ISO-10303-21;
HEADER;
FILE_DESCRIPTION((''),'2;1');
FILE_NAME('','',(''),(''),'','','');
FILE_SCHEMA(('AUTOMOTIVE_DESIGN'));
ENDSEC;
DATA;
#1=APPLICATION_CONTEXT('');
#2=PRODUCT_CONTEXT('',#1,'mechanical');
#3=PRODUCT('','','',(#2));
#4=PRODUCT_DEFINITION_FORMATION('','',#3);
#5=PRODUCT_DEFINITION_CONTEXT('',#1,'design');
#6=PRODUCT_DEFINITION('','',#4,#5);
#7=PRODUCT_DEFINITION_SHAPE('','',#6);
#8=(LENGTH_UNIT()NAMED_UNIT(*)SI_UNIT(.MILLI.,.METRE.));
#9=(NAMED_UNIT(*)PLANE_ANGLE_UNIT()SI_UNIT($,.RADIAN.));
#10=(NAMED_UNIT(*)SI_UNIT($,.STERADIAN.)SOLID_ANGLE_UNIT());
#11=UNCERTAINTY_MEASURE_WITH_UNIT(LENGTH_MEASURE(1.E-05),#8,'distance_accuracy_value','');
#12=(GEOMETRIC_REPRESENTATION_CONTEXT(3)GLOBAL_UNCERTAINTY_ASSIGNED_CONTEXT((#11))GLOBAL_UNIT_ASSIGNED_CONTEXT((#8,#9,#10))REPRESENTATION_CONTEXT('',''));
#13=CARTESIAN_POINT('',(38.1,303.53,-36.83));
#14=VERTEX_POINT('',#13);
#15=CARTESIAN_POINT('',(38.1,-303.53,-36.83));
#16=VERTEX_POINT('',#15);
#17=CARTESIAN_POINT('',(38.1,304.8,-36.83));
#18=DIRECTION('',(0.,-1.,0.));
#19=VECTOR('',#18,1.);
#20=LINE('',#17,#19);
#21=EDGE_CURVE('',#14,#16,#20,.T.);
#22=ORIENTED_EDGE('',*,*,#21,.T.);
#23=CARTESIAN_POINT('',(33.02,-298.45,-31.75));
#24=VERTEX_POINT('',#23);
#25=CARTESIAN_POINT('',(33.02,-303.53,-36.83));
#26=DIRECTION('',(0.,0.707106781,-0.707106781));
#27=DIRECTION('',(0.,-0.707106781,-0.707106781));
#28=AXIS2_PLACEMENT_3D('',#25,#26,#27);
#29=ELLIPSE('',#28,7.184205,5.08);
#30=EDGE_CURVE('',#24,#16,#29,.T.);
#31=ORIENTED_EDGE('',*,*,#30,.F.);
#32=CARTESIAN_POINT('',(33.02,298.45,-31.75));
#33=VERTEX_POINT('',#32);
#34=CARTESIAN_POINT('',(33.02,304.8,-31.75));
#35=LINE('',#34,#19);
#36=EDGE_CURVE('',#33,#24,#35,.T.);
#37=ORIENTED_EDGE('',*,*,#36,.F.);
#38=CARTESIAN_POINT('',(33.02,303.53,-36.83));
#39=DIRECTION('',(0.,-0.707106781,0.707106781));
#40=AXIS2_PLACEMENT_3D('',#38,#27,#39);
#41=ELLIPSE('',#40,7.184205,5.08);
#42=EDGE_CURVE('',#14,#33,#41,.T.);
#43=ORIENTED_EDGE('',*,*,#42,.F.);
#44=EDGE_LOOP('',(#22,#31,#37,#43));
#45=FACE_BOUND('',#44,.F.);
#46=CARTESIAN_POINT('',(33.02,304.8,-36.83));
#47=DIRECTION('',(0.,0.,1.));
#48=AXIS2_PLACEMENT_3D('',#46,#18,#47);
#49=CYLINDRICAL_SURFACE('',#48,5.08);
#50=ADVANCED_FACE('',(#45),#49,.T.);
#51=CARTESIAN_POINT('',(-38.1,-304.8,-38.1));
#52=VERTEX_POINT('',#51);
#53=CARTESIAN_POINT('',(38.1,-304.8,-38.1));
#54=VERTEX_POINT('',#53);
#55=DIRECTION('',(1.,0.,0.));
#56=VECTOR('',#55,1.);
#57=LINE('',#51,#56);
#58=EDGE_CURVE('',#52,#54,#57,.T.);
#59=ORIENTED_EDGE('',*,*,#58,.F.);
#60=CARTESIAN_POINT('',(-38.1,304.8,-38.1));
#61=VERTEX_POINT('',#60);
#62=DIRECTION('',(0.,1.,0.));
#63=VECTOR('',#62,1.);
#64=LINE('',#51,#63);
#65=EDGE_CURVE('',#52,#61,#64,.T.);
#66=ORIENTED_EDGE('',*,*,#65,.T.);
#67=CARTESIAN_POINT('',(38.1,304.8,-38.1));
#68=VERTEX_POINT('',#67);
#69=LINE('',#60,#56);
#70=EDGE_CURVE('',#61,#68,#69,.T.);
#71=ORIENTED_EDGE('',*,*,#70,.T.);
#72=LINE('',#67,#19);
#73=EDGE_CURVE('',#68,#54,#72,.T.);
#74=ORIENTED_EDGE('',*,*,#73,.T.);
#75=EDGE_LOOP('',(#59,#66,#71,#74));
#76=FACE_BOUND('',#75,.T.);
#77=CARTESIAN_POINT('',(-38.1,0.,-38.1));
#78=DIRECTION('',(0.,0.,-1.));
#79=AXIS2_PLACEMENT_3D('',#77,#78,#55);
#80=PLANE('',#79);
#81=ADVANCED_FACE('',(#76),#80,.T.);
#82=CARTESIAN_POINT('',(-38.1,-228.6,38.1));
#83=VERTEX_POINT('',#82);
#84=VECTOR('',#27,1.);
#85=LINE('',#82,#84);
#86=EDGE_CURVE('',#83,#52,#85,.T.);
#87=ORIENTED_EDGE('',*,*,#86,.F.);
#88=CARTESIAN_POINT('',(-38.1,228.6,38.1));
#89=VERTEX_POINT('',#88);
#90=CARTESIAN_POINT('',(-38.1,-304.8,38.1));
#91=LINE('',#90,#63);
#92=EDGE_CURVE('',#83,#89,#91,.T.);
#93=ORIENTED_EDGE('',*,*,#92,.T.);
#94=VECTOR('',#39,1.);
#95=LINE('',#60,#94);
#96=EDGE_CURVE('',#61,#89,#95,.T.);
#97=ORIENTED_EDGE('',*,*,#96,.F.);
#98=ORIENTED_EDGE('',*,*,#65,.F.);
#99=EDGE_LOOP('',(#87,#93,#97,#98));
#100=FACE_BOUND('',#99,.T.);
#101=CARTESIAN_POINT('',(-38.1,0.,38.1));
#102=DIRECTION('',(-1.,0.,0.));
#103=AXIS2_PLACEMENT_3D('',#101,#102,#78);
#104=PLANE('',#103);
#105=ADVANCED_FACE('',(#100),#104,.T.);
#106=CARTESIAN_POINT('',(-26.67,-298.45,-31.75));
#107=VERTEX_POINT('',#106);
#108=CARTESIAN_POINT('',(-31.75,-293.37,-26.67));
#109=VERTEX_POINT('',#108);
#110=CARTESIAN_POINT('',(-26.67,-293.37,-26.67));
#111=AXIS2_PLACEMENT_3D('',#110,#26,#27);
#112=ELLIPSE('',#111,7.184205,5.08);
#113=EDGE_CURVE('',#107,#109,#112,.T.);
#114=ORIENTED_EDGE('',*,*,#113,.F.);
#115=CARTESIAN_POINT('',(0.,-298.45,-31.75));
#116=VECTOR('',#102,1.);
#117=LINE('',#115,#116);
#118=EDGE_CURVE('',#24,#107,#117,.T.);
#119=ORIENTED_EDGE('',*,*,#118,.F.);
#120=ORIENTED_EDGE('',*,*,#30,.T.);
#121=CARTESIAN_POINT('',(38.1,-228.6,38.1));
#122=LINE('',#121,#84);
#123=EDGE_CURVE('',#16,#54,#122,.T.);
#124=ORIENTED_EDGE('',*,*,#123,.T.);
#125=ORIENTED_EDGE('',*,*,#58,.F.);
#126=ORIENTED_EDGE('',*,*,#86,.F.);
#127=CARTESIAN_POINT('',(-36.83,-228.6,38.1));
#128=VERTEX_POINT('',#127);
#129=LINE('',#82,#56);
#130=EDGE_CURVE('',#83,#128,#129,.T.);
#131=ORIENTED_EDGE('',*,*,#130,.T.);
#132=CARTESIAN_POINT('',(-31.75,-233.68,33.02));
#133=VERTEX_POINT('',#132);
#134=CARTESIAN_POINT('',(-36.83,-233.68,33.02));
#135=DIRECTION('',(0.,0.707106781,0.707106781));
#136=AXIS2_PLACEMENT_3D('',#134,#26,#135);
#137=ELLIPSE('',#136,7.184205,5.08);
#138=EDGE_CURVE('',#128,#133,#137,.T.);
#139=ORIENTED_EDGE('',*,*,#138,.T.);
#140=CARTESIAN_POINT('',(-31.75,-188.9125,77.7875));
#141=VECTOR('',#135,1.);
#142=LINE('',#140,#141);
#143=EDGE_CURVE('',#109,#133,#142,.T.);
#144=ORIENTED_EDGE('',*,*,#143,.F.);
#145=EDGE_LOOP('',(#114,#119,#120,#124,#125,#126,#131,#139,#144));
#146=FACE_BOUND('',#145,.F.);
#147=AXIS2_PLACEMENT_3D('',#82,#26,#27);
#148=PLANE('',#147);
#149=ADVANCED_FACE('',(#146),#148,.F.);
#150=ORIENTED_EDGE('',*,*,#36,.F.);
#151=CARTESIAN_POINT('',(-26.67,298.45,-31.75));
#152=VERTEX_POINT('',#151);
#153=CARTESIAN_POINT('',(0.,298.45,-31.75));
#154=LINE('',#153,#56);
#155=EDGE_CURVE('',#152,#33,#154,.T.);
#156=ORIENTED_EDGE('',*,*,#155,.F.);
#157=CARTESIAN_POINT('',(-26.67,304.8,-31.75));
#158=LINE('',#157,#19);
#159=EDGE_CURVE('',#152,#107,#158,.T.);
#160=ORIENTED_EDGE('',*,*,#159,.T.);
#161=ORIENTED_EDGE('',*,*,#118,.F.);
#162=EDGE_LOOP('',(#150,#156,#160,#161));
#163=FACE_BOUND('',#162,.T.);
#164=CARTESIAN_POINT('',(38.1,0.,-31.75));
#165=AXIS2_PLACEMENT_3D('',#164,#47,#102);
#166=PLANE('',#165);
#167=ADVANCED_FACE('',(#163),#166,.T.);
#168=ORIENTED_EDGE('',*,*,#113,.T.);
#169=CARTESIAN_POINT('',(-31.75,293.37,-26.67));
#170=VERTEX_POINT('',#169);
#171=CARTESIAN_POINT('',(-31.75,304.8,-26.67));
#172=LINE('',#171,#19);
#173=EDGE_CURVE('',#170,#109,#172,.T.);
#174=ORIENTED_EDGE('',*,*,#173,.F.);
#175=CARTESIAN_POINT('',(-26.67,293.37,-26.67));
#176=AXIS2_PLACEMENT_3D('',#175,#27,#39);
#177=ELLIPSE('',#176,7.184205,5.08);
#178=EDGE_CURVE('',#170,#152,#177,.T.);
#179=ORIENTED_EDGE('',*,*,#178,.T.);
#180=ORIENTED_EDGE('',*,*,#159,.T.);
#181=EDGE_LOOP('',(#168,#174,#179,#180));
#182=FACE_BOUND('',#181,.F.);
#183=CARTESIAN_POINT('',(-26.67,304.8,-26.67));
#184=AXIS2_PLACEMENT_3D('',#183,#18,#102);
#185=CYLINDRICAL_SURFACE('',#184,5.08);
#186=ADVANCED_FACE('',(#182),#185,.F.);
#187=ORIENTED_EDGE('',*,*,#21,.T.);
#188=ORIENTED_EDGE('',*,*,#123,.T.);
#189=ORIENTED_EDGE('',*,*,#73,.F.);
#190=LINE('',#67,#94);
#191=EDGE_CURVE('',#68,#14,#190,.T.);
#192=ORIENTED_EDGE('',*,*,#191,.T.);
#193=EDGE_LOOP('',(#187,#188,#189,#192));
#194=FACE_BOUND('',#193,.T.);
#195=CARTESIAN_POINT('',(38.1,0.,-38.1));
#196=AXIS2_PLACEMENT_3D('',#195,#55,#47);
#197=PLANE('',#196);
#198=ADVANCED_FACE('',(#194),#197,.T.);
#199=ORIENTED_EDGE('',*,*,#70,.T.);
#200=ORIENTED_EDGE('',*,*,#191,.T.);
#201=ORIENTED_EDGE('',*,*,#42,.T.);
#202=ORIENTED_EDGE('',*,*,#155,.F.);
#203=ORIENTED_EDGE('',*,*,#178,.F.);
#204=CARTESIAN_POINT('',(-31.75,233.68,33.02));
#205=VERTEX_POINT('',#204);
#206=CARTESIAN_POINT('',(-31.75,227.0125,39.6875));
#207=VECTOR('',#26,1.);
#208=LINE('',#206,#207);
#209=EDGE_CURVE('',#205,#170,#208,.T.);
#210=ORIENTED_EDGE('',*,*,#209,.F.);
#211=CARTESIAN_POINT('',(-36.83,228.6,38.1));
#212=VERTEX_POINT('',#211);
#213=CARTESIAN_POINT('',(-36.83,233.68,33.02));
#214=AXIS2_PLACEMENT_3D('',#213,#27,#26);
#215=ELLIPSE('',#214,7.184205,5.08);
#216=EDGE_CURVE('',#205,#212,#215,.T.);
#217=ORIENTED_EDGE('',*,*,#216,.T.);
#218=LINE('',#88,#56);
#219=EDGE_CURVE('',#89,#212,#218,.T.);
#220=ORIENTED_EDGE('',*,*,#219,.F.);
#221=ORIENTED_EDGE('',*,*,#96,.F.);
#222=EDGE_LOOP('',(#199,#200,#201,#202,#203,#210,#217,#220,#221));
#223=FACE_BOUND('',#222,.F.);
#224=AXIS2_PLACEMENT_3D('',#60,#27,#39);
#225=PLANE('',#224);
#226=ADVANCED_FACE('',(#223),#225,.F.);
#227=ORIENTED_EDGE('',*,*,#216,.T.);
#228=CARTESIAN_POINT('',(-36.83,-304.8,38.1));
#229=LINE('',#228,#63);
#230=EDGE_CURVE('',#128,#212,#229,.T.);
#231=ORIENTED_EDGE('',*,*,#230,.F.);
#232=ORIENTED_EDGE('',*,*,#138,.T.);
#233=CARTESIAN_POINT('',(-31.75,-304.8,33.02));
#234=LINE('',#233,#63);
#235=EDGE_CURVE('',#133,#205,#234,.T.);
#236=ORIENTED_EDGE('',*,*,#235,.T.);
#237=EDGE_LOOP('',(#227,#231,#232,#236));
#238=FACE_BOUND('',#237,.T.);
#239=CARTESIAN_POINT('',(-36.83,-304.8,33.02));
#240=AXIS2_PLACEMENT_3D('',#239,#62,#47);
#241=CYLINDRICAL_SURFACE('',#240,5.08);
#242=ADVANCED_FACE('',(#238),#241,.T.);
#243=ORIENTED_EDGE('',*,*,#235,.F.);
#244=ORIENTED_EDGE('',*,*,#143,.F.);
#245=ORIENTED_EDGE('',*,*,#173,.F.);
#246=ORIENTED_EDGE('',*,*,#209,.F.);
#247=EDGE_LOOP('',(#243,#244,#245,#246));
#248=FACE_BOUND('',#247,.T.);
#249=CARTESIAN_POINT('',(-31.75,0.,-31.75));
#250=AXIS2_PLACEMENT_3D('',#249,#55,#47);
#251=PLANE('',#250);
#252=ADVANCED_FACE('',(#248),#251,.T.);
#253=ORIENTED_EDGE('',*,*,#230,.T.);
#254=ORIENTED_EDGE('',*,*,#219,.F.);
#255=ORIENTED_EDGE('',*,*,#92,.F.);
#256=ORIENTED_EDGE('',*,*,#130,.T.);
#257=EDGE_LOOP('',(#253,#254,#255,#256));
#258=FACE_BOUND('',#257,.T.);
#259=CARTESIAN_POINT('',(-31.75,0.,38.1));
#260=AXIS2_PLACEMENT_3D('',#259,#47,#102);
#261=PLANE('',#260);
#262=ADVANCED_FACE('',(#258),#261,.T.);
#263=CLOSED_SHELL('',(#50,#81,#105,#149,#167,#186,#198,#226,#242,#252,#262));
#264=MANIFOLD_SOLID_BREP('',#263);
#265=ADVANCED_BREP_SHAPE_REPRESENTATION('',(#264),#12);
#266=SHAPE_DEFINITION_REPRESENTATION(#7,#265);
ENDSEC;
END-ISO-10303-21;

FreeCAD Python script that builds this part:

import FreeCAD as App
import Part
import Sketcher
from FreeCAD import Vector
Q = App.Units.Quantity


def edges_at(feature, points):
    """Names of the edges that pass closest to the given points."""
    edges = feature.Shape.Edges
    near = lambda p: min(range(len(edges)), key=lambda i: edges[i].distToShape(Part.Vertex(*p))[0])
    return sorted({f"Edge{near(p) + 1}" for p in points})


def add_polygon(sketch, points):
    """Adds a closed chain of lines whose ends are joined by coincident constraints."""
    first, n = sketch.GeometryCount, len(points)
    for a, b in zip(points, points[1:] + points[:1]):
        sketch.addGeometry(Part.LineSegment(App.Vector(*a, 0), App.Vector(*b, 0)), False)
    for i in range(n):
        sketch.addConstraint(Sketcher.Constraint("Coincident", first + i, 2, first + (i + 1) % n, 1))

doc = App.newDocument("Part")
body = doc.addObject("PartDesign::Body", "Body")

# Sketch on XZ plane
sketch1 = body.newObject("Sketcher::SketchObject", "Sketch")
sketch1.AttachmentSupport = (doc.getObject("XZ_Plane"), [""])
sketch1.MapMode = "FlatFace"
add_polygon(sketch1, [(-38.1, -38.1), (38.1, -38.1), (38.1, -31.75), (-31.75, -31.75), (-31.75, 38.1), (-38.1, 38.1)])  # lines 0-5
sketch1.addConstraint([
    Sketcher.Constraint("Horizontal", 0),
    Sketcher.Constraint("Vertical", 1),
    Sketcher.Constraint("Horizontal", 2),
    Sketcher.Constraint("Vertical", 3),
    Sketcher.Constraint("Horizontal", 4),
    Sketcher.Constraint("Vertical", 5),
    Sketcher.Constraint("Symmetric", 0, 2, 4, 2, -1, 1),
    Sketcher.Constraint("Equal", 4, 1),
    Sketcher.Constraint("Equal", 2, 3),
    Sketcher.Constraint("DistanceX", 0, 1, 0, 2, Q("3 in")),
    Sketcher.Constraint("DistanceX", 2, 2, 2, 1, Q("2.75 in")),
])
pad1 = body.newObject("PartDesign::Pad", "Pad")
pad1.Profile = sketch1
pad1.Length = Q("24 in")
pad1.Midplane = True
doc.recompute()

fillet = body.newObject("PartDesign::Fillet", "Fillet")
fillet.Base = (pad1, edges_at(pad1, [(-31.75, 0, 38.1), (-31.75, 0, -31.75), (38.1, 0, -31.75)]))
fillet.Radius = Q("0.2 in")

# Sketch on YZ plane
sketch2 = body.newObject("Sketcher::SketchObject", "Sketch001")
sketch2.AttachmentSupport = (doc.getObject("YZ_Plane"), [""])
sketch2.MapMode = "FlatFace"
sketch2.AttachmentOffset = App.Placement(Vector(0, 0, -1.5 * 25.4), App.Rotation())
add_polygon(sketch2, [(304.8, 38.1), (304.8, -38.1), (228.6, 38.1)])  # lines 0-2
add_polygon(sketch2, [(-228.6, 38.1), (-304.8, -38.1), (-304.8, 38.1)])  # lines 3-5
sketch2.addConstraint([
    Sketcher.Constraint("Vertical", 0),
    Sketcher.Constraint("Horizontal", 2),
    Sketcher.Constraint("Vertical", 4),
    Sketcher.Constraint("Horizontal", 5),
    Sketcher.Constraint("Symmetric", 2, 2, 3, 2, -1, 1),
    Sketcher.Constraint("Symmetric", 1, 2, 5, 2, -2),
    Sketcher.Constraint("Perpendicular", 1, 3),
    Sketcher.Constraint("Horizontal", 0, 2, 3, 2),
    Sketcher.Constraint("DistanceX", 2, 1, 2, 2, Q("3 in")),
    Sketcher.Constraint("DistanceX", -1, 1, 0, 2, Q("12 in")),
])
pocket1 = body.newObject("PartDesign::Pocket", "Pocket")
pocket1.Profile = sketch2
pocket1.Length = Q("3 in")
pocket1.Reversed = True

doc.recompute()
